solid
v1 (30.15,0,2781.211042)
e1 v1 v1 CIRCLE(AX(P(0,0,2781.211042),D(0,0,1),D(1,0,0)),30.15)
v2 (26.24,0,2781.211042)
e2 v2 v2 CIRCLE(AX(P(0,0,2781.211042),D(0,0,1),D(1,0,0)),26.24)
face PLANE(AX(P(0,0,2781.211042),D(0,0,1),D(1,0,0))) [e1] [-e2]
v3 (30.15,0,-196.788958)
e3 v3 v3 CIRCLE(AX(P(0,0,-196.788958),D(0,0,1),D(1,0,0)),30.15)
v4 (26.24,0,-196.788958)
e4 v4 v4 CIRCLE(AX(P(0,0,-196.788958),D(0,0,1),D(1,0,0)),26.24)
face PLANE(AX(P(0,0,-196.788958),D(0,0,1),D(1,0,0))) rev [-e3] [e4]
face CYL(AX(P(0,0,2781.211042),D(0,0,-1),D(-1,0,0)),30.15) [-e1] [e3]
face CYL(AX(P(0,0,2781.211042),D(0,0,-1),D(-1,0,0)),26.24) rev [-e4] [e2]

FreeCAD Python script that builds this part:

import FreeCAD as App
import Part
import Sketcher

doc = App.newDocument("Part")
body = doc.addObject("PartDesign::Body", "Body")

sketch1 = body.newObject("Sketcher::SketchObject", "Sketch")
sketch1.AttachmentSupport = (doc.getObject("XY_Plane"), [""])
sketch1.MapMode = "FlatFace"
sketch1.AttachmentOffset = App.Placement(App.Vector(0, 0, -196.788958), App.Rotation())
sketch1.addGeometry([
    Part.Circle(App.Vector(0, 0, 0), App.Vector(0, 0, 1), 30),
    Part.Circle(App.Vector(0, 0, 0), App.Vector(0, 0, 1), 26),
], False)
sketch1.addConstraint([
    Sketcher.Constraint("Coincident", 0, 3, -1, 1),
    Sketcher.Constraint("Coincident", 1, 3, -1, 1),
    Sketcher.Constraint("Diameter", 0, 60.3),
    Sketcher.Constraint("Diameter", 1, 52.48),
])
pad1 = body.newObject("PartDesign::Pad", "Pad")
pad1.Profile = sketch1
pad1.Length = 2978

doc.recompute()
